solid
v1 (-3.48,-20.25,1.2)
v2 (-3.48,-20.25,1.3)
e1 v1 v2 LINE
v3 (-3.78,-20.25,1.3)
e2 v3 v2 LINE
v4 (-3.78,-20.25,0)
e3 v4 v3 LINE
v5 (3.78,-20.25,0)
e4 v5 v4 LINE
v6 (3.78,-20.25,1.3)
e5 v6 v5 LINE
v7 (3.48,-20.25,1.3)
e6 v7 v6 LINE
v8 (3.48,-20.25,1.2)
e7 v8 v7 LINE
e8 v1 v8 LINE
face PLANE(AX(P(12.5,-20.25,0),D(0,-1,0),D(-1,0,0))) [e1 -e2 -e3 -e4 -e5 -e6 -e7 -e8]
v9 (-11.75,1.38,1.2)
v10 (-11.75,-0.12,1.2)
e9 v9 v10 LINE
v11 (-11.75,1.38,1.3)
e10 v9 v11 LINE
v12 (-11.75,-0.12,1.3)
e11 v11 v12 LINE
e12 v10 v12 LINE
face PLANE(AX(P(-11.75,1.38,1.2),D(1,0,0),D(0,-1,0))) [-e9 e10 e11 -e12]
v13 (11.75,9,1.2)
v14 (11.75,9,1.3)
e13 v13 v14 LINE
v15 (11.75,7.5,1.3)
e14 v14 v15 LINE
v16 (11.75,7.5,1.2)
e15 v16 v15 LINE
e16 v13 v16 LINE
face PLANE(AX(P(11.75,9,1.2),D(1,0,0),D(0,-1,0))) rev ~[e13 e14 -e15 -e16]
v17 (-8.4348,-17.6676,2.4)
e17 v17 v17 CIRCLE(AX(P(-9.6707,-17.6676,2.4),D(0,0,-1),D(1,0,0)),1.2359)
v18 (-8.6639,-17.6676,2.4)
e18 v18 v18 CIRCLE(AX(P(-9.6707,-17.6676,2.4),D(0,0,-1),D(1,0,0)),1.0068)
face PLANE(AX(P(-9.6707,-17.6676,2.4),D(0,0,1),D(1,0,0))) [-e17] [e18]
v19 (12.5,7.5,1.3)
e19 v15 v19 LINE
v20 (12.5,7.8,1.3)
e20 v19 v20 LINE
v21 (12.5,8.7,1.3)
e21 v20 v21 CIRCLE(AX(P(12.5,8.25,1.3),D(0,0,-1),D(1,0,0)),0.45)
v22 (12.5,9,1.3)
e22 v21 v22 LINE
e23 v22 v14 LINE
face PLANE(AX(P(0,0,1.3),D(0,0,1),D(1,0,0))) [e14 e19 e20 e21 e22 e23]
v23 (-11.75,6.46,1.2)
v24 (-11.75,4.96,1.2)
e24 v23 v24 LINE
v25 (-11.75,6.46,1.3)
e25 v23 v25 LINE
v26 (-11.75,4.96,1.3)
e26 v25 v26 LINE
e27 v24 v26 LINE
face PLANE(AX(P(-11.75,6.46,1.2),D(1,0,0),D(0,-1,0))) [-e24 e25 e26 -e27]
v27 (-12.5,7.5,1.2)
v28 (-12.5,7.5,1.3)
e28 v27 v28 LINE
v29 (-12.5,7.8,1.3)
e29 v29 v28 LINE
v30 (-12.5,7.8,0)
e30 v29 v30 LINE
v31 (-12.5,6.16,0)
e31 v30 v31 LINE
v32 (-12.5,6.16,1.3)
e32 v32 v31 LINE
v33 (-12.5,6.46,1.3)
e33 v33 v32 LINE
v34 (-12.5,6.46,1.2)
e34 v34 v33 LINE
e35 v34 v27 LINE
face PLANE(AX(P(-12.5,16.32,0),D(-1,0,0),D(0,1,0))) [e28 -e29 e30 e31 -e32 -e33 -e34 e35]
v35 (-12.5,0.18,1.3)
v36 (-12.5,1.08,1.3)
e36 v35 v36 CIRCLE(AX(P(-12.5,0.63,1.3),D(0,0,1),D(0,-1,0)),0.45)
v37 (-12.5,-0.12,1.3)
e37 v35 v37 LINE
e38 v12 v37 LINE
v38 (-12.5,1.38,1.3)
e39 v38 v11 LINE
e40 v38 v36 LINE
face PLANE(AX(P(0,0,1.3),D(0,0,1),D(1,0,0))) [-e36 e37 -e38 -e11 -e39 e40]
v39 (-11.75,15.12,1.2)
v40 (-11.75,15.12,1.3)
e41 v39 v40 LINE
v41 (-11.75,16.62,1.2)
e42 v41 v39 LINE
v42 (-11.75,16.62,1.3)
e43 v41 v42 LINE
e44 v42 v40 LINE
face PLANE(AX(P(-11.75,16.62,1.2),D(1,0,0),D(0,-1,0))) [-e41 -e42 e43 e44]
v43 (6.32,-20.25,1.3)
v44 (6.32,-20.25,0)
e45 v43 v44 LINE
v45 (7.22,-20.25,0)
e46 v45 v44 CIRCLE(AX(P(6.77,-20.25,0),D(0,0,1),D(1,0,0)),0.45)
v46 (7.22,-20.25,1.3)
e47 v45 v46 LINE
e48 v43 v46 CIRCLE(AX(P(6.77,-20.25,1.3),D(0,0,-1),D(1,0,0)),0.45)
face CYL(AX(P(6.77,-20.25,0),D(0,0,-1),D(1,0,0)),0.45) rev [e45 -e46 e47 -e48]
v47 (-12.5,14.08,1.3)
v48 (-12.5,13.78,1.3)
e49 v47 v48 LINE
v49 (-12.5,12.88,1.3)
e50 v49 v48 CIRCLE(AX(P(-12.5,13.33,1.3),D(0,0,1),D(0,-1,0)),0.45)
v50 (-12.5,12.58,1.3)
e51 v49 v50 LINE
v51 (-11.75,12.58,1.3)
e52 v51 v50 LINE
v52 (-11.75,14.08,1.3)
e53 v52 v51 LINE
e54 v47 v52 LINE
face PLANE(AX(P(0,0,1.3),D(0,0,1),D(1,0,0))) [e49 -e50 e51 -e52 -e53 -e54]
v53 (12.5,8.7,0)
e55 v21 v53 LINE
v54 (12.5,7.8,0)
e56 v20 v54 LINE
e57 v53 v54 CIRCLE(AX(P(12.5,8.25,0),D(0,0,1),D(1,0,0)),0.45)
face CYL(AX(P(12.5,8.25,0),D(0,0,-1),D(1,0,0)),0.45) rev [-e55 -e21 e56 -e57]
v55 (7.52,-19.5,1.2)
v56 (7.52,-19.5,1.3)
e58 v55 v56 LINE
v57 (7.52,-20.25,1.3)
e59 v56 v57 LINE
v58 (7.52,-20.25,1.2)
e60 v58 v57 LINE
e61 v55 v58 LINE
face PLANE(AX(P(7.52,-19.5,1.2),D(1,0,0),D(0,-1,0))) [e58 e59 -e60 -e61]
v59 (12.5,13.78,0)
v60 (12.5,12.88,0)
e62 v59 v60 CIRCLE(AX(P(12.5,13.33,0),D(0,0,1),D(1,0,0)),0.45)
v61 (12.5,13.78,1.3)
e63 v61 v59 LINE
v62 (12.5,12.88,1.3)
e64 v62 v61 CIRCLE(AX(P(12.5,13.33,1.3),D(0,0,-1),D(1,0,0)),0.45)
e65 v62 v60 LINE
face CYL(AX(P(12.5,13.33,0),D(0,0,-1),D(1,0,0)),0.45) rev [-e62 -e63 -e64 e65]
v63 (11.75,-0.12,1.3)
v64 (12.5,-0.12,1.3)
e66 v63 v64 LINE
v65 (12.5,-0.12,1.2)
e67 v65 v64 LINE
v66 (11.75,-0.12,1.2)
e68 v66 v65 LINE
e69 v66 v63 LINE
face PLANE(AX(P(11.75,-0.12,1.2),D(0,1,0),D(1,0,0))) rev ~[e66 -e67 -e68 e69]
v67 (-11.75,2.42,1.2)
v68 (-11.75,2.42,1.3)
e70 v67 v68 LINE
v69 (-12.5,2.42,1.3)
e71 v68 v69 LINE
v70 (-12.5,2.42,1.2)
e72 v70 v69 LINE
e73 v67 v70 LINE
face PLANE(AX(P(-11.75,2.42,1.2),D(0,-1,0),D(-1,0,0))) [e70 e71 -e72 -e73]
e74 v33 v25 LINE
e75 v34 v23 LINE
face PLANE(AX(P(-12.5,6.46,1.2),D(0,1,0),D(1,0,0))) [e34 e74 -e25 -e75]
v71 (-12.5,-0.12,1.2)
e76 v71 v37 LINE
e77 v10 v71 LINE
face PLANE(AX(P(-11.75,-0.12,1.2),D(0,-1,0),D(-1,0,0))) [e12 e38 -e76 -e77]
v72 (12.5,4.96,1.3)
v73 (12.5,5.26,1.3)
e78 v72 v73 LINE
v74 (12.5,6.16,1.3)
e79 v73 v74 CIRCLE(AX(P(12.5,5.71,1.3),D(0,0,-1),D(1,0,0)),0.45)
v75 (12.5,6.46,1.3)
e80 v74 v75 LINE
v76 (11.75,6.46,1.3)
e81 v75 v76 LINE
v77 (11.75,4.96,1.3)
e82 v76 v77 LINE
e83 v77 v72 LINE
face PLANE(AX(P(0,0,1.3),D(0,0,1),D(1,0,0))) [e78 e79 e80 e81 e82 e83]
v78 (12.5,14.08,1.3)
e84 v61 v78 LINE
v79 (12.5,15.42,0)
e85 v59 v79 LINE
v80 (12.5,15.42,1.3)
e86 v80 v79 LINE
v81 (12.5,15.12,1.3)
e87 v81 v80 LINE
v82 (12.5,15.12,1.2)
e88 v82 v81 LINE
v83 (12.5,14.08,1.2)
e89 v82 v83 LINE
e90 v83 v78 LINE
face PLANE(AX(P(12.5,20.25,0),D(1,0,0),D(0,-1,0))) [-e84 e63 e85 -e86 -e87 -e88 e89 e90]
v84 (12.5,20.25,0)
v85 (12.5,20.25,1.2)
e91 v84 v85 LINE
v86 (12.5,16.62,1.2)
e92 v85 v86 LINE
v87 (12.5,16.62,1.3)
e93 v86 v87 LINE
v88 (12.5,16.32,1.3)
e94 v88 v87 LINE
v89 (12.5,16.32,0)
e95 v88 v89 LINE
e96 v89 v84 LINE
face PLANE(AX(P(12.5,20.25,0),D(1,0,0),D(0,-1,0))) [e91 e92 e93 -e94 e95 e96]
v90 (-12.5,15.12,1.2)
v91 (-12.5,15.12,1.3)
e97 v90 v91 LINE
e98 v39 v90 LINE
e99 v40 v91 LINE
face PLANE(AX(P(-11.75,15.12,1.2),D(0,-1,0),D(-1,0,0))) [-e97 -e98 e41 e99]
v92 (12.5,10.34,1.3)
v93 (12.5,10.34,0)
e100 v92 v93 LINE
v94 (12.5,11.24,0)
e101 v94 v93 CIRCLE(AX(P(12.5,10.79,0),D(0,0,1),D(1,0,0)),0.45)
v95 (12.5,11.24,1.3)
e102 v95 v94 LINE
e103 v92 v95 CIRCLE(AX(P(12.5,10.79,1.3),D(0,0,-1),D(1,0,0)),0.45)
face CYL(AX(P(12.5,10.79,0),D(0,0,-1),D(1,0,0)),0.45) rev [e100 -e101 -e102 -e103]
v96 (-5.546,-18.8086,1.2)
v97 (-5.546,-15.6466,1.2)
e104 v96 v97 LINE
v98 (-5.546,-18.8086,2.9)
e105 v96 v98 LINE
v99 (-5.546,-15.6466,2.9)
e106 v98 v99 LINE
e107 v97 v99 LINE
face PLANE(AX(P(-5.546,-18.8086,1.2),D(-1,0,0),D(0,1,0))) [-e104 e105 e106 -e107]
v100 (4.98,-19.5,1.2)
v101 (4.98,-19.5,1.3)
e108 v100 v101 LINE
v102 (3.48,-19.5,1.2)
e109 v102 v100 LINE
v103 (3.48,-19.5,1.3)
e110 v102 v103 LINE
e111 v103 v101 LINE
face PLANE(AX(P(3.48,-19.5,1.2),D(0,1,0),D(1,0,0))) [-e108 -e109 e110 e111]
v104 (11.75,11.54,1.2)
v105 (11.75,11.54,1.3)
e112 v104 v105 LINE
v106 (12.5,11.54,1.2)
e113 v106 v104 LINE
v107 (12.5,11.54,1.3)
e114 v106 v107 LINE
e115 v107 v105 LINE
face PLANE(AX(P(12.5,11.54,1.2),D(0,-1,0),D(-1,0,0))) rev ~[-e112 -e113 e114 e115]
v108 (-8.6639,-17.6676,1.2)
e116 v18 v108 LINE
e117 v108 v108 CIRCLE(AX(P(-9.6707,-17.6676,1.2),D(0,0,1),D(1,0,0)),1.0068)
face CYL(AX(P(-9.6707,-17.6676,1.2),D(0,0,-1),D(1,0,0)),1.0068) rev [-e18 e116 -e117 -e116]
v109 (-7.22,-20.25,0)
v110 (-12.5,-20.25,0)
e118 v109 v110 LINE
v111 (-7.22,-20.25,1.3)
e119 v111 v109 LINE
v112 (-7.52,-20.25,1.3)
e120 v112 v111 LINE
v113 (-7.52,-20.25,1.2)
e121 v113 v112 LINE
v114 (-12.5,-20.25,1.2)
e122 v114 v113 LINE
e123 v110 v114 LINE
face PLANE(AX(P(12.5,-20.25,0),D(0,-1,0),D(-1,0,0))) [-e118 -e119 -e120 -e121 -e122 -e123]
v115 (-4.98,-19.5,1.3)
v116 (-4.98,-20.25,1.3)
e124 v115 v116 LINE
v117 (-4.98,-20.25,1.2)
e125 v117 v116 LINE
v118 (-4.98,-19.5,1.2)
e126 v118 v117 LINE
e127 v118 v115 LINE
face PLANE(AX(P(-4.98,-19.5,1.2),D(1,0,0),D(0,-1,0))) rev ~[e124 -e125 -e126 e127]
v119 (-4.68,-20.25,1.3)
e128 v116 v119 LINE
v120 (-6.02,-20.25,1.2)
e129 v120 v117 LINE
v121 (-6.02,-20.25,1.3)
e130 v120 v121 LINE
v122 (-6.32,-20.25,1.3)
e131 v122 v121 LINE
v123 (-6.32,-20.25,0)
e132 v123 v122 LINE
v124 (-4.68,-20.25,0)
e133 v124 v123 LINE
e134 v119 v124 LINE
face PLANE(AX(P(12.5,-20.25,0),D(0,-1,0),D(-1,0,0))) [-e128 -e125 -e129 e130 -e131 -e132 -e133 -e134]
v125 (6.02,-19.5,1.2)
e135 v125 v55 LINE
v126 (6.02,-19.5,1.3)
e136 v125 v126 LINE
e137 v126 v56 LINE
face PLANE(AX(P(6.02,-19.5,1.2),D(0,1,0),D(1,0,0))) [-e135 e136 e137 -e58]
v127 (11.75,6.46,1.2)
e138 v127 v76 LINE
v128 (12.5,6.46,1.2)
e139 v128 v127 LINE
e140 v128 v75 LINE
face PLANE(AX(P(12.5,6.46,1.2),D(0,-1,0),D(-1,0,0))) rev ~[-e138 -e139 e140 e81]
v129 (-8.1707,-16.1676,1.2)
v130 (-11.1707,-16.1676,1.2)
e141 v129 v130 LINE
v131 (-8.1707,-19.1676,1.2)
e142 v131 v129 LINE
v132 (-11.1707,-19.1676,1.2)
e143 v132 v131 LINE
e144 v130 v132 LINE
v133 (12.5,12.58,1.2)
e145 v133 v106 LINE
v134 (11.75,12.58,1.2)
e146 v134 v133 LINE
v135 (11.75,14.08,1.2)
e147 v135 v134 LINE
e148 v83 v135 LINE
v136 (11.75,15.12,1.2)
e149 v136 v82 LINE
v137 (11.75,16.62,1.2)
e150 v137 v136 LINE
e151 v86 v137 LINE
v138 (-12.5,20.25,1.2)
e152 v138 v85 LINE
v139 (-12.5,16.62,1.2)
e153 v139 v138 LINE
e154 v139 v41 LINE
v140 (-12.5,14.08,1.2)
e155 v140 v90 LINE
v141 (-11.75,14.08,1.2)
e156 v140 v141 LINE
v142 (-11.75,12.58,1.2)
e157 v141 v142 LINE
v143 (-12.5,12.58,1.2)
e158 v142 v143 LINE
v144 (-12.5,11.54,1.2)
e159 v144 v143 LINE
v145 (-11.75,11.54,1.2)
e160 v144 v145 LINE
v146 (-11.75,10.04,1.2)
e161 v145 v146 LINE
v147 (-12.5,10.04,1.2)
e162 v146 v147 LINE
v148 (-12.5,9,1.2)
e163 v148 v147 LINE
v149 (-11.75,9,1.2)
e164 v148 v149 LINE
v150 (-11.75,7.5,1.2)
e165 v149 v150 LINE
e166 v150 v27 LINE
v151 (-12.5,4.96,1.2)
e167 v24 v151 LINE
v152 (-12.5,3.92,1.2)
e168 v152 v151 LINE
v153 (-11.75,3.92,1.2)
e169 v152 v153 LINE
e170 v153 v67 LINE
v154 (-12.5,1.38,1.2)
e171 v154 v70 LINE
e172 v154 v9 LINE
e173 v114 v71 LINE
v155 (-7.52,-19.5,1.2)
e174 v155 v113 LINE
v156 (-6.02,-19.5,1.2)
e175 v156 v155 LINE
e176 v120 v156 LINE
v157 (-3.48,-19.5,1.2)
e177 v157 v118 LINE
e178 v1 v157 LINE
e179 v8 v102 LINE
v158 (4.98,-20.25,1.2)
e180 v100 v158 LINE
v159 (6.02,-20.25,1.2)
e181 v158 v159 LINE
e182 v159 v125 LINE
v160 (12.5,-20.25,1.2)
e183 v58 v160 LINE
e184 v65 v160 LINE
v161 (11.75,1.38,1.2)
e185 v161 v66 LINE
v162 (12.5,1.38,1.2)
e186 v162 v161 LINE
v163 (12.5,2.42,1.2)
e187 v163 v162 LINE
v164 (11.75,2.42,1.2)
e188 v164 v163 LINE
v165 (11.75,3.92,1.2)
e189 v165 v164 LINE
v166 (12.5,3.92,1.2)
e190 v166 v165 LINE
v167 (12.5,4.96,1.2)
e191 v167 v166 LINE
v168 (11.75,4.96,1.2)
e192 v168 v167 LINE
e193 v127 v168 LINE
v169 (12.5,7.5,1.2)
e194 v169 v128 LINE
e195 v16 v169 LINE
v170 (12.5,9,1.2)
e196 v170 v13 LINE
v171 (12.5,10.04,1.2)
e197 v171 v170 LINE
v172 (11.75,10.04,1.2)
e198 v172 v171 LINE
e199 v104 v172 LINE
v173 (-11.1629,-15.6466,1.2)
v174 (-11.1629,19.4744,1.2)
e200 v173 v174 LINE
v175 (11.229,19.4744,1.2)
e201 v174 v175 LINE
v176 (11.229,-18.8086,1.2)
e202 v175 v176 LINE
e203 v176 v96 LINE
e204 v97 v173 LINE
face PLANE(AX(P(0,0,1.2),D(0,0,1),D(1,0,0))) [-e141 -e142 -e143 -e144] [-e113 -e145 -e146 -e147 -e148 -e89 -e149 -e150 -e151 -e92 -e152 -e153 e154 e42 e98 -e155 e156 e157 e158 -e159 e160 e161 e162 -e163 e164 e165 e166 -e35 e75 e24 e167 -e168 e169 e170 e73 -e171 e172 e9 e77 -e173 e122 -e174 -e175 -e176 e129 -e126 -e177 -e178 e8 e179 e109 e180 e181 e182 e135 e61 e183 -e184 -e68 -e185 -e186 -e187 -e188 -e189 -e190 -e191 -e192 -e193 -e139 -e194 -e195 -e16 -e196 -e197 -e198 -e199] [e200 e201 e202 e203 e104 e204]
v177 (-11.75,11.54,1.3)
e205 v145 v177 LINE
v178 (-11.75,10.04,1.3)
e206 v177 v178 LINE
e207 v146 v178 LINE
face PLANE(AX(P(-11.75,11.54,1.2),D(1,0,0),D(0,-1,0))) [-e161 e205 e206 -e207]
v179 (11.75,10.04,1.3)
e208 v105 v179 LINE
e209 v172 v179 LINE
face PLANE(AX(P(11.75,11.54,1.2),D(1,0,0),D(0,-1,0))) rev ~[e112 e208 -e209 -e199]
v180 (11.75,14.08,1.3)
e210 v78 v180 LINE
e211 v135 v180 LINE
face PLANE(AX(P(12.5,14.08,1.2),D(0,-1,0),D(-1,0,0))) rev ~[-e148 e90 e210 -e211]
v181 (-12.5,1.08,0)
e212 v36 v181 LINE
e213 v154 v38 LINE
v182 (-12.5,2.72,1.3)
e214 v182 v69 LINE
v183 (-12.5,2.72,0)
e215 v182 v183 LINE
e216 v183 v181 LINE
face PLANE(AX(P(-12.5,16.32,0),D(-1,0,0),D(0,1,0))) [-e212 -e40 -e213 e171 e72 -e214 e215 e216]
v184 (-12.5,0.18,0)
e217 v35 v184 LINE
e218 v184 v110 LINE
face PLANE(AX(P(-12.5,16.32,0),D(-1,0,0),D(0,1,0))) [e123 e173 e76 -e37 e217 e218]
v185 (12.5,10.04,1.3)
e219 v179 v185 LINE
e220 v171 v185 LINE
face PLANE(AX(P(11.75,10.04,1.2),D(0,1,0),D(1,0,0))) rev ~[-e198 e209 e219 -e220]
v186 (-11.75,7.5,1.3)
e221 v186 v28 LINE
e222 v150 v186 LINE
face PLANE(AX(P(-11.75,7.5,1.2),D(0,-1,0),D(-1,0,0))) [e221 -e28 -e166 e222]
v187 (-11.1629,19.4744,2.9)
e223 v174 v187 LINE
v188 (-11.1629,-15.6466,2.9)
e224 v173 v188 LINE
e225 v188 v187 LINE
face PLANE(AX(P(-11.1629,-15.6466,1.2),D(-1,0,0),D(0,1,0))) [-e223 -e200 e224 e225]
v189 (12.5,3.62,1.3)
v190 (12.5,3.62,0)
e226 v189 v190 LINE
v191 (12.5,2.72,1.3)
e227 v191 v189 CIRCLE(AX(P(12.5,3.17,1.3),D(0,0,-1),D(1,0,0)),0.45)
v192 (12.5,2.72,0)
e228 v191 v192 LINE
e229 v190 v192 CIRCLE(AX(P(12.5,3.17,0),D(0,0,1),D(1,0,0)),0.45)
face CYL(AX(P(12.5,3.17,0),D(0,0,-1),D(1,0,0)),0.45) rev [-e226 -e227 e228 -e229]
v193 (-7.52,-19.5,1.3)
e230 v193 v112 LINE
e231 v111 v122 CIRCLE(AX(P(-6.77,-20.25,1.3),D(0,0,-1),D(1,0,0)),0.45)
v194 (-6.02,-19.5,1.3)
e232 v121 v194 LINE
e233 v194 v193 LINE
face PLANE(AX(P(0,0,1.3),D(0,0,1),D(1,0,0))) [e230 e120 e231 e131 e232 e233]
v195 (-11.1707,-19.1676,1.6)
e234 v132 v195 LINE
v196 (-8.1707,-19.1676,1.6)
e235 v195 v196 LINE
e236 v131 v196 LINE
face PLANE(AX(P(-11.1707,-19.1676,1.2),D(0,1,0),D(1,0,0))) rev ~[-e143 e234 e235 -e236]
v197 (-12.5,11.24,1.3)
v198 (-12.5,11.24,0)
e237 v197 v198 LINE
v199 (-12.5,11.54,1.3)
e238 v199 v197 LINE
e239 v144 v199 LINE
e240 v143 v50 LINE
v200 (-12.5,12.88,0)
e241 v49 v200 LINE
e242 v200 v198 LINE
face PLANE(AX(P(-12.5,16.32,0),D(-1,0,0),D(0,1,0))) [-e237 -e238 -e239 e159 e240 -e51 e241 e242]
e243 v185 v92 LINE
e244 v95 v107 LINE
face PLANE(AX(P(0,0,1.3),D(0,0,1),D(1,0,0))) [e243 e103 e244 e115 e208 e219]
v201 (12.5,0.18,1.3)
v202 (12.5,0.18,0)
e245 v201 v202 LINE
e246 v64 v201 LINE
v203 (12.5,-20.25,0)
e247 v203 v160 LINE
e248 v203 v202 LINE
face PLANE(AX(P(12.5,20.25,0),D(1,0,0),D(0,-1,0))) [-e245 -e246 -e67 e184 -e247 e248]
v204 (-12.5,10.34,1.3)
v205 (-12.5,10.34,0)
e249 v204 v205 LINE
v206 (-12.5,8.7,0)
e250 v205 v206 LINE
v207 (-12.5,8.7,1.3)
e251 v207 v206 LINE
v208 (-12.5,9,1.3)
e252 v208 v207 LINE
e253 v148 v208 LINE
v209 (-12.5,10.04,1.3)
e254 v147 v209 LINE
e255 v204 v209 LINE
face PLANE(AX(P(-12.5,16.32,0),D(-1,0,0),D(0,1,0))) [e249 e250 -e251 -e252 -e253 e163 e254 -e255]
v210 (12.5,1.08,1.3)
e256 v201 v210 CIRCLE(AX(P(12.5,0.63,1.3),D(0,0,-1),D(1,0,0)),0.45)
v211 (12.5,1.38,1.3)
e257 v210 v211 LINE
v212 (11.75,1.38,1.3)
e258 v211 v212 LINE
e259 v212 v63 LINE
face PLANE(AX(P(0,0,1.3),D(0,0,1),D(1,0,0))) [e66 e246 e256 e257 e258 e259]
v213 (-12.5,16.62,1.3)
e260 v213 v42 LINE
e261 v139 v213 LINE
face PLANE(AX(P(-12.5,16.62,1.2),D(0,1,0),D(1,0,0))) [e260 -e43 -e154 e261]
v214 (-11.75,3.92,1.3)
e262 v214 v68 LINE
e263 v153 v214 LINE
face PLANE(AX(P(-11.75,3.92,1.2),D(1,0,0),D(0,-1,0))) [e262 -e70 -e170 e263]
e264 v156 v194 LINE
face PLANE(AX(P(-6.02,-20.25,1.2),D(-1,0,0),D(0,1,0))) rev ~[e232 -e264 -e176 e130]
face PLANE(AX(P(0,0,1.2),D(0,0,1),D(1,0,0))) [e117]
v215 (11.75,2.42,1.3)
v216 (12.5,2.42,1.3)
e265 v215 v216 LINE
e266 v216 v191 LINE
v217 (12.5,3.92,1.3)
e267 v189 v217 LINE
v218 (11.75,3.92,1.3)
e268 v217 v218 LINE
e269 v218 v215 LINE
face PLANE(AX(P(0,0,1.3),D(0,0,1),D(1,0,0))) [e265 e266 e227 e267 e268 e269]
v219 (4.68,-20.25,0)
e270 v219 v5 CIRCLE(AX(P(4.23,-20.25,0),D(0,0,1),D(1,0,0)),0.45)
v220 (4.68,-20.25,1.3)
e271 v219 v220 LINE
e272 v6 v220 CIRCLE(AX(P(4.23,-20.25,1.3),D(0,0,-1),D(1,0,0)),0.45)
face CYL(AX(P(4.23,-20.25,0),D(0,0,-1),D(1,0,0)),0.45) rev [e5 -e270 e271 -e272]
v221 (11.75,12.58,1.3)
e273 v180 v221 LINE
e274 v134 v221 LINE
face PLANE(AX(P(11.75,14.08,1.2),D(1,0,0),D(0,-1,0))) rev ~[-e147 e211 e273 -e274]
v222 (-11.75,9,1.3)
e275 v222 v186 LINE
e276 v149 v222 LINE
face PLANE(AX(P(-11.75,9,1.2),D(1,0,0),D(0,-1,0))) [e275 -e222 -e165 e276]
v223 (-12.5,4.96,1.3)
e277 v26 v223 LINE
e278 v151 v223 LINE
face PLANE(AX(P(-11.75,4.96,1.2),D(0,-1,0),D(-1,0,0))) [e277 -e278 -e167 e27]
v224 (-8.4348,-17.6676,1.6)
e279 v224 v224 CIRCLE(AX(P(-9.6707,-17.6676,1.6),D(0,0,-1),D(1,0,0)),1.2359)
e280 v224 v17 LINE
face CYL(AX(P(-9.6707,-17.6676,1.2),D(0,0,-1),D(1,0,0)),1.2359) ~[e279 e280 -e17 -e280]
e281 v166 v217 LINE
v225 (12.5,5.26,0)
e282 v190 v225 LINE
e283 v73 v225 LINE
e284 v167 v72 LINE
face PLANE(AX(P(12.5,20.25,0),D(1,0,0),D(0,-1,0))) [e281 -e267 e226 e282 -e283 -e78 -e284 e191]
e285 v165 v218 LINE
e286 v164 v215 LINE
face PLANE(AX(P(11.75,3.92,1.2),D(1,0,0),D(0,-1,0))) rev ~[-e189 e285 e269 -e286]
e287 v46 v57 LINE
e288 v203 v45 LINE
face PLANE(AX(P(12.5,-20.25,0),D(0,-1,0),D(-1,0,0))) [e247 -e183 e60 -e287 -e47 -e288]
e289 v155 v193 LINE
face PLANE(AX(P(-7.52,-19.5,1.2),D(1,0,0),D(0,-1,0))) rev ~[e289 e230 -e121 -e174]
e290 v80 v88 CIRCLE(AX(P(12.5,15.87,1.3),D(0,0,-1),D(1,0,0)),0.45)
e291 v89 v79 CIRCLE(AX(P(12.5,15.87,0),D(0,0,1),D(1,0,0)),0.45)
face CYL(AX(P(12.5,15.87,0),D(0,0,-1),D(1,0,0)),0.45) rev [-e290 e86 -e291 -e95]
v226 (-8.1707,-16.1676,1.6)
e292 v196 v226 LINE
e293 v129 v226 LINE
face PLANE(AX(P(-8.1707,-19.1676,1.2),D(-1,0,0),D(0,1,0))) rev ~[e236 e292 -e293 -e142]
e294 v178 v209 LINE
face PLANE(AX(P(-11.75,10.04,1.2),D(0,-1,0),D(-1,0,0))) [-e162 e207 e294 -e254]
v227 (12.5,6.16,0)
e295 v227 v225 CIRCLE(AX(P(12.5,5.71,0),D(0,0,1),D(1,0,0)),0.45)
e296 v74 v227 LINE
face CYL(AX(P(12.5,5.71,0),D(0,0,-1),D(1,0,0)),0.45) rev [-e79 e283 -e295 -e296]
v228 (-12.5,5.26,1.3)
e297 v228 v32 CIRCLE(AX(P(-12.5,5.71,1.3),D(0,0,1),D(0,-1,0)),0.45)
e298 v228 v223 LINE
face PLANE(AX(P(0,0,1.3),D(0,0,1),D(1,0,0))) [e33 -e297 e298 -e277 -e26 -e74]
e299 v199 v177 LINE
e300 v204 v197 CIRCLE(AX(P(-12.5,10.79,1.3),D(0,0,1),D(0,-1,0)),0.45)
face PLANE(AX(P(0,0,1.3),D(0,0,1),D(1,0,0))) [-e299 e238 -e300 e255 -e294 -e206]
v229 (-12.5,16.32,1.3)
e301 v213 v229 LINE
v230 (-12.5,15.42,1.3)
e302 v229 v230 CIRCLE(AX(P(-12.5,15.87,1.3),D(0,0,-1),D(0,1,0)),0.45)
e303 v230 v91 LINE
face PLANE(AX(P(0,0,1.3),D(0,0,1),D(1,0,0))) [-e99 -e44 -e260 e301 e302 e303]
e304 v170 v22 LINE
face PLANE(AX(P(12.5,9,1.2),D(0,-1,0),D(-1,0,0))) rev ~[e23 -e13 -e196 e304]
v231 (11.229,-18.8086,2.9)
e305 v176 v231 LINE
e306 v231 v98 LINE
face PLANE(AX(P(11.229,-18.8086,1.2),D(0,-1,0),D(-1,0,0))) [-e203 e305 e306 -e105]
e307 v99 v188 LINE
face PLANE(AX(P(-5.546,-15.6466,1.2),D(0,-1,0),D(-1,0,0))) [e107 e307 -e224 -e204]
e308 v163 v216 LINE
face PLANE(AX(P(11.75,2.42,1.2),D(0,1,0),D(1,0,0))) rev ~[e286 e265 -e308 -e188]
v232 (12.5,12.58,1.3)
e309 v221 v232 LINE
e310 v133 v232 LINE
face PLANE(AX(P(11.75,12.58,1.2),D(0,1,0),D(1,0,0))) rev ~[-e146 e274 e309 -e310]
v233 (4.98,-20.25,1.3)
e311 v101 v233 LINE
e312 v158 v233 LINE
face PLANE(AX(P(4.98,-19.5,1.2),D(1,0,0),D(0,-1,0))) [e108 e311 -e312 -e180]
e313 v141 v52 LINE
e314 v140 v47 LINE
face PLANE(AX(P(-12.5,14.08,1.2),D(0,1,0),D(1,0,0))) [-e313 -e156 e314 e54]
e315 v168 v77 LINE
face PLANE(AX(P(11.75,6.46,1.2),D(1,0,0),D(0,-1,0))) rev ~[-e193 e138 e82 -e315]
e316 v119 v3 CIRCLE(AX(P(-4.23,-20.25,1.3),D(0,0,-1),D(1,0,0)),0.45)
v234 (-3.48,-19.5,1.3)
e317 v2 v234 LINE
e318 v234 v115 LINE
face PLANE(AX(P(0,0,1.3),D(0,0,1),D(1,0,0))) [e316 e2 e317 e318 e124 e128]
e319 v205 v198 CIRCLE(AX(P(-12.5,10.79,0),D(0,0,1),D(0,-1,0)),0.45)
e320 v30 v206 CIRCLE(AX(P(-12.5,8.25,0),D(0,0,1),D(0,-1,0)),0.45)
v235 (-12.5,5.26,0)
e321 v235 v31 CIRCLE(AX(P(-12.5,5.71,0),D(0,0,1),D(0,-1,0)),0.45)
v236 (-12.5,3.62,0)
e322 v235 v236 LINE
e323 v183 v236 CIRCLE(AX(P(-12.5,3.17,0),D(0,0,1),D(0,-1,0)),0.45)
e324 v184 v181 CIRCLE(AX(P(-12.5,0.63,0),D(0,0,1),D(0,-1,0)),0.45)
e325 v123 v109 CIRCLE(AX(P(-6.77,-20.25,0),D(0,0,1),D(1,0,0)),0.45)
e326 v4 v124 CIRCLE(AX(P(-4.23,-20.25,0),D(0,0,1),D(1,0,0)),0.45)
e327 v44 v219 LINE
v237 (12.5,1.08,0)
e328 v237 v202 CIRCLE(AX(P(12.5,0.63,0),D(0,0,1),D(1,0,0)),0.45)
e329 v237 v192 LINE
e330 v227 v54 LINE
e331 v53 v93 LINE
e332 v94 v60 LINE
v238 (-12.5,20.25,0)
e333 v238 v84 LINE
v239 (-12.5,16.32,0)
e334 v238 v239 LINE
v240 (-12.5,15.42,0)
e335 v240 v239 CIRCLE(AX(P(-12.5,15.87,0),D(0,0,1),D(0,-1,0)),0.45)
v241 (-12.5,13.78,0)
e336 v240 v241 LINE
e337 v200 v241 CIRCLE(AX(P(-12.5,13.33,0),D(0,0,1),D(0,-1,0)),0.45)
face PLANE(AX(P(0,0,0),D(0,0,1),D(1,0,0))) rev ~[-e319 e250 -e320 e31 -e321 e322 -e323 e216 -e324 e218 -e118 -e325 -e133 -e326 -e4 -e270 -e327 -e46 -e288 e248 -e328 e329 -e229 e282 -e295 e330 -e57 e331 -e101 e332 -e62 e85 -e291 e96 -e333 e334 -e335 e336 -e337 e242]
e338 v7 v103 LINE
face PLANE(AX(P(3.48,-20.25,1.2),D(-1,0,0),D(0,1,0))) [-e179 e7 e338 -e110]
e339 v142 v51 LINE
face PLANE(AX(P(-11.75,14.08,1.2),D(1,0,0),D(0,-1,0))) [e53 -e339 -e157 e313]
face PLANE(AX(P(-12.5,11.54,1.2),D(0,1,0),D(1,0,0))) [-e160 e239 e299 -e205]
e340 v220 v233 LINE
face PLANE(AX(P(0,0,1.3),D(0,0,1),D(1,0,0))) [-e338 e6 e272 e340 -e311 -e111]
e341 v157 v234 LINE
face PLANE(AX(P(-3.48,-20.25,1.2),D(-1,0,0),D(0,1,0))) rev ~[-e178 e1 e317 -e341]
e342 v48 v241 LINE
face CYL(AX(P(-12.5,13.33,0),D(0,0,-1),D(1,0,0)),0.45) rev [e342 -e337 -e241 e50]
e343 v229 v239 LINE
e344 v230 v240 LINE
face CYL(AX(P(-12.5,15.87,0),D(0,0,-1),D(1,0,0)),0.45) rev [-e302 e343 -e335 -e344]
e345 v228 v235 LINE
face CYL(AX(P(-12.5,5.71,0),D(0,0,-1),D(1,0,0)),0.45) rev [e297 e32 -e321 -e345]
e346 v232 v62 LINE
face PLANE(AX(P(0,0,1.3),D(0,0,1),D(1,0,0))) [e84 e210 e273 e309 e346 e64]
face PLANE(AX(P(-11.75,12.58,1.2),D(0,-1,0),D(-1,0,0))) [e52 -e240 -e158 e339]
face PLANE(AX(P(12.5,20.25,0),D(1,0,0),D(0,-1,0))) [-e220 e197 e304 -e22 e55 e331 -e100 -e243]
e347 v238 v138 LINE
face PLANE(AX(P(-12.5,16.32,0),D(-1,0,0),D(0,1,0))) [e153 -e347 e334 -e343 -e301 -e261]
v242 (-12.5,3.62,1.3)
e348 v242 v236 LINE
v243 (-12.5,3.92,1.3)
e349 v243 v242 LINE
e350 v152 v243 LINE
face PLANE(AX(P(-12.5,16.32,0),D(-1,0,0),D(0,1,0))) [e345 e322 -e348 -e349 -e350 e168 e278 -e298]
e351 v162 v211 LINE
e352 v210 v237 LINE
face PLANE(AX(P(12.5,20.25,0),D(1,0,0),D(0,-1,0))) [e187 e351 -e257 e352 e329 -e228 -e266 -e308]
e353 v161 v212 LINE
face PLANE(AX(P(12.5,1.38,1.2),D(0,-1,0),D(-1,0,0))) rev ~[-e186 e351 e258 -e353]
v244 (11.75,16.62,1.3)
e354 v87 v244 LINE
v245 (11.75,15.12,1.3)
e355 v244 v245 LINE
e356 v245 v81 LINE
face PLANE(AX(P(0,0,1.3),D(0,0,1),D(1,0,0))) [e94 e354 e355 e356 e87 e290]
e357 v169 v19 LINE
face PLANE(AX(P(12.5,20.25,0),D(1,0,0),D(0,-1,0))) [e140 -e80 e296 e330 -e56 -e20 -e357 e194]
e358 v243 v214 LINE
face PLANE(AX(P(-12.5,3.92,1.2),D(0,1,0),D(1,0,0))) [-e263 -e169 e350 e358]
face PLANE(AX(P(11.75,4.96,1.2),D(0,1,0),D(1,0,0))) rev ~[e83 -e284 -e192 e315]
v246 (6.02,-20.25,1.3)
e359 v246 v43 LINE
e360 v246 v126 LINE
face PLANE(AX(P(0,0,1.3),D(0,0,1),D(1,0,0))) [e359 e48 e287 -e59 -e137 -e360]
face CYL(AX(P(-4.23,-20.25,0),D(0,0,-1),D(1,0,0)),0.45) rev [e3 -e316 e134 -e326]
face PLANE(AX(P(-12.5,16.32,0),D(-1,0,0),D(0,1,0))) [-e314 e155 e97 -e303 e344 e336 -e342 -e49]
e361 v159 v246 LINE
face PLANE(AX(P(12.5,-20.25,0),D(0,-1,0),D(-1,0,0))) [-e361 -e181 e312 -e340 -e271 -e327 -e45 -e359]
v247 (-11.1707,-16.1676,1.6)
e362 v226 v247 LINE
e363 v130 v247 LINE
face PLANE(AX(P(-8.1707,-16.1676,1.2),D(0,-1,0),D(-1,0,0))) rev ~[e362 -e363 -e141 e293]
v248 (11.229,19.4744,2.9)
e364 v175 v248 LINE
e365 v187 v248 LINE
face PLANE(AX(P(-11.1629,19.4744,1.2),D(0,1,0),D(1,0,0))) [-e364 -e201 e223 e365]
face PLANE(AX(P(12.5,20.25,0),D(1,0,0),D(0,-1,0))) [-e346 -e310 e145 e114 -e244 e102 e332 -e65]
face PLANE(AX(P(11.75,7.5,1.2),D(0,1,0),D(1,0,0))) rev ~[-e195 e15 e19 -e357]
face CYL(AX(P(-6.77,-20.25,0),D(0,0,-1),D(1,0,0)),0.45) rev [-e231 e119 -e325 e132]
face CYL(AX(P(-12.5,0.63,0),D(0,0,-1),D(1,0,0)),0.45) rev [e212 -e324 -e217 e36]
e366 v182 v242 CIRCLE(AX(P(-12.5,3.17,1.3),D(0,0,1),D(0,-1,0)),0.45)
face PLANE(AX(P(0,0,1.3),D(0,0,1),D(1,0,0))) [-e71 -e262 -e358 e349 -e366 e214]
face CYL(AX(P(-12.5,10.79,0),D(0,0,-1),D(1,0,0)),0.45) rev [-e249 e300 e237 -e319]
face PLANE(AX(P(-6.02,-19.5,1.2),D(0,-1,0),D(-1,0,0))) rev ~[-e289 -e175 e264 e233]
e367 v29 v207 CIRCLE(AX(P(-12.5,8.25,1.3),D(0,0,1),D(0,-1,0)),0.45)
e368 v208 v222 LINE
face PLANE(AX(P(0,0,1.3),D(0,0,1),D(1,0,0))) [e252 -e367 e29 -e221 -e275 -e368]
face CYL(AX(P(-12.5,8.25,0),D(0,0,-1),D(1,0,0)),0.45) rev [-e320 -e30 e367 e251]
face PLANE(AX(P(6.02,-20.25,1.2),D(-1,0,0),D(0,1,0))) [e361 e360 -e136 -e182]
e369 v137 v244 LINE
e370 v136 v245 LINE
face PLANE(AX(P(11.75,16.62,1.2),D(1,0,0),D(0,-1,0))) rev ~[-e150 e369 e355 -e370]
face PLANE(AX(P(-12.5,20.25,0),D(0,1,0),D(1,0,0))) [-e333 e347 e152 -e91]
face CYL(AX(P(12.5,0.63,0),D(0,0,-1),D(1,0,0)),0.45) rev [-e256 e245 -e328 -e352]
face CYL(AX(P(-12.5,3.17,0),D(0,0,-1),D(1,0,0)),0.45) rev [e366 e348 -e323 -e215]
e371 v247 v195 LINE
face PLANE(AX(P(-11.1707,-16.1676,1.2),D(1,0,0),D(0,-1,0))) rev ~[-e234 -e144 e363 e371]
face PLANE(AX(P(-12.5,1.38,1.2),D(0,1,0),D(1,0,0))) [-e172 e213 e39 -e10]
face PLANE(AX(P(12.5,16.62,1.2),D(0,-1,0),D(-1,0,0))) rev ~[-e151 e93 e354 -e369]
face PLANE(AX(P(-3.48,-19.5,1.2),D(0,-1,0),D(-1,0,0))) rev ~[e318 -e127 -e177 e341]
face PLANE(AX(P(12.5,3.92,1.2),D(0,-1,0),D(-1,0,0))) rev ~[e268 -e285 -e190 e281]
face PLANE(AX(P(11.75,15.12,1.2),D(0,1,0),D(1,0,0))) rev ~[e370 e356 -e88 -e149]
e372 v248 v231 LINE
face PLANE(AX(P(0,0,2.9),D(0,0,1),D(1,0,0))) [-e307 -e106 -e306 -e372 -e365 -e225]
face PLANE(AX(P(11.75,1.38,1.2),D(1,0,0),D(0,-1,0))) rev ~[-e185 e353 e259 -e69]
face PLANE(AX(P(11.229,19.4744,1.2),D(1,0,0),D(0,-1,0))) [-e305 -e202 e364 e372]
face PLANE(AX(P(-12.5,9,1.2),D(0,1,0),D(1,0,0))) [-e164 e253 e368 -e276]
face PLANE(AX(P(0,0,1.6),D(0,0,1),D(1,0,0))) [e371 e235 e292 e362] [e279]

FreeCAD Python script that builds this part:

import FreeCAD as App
import Part
import Sketcher
Q = App.Units.Quantity


def add_polygon(sketch, points):
    """Adds a closed chain of lines whose ends are joined by coincident constraints."""
    first, n = sketch.GeometryCount, len(points)
    for a, b in zip(points, points[1:] + points[:1]):
        sketch.addGeometry(Part.LineSegment(App.Vector(*a, 0), App.Vector(*b, 0)), False)
    for i in range(n):
        sketch.addConstraint(Sketcher.Constraint("Coincident", first + i, 2, first + (i + 1) % n, 1))

doc = App.newDocument("Part")
body = doc.addObject("PartDesign::Body", "Body")

# Sketch on XY plane
sketch1 = doc.addObject("Sketcher::SketchObject", "Sketch")
body.addObject(sketch1)
sketch1.AttachmentSupport = (doc.XY_Plane, [""])
sketch1.MapMode = "FlatFace"
add_polygon(sketch1, [(12, 20), (-12, 20), (-12, -20), (12, -20)])  # lines 0-3
sketch1.addConstraint([
    Sketcher.Constraint("Horizontal", 0),
    Sketcher.Constraint("Vertical", 1),
    Sketcher.Constraint("Horizontal", 2),
    Sketcher.Constraint("Vertical", 3),
    Sketcher.Constraint("Symmetric", 0, 2, 2, 2, -1, 1),
    Sketcher.Constraint("DistanceX", 0, 2, 0, 1, Q("25 mm")),
    Sketcher.Constraint("DistanceY", 1, 2, 1, 1, Q("40.5 mm")),
])
pad1 = doc.addObject("PartDesign::Pad", "Pad")
body.addObject(pad1)
pad1.Profile = sketch1
pad1.Length = 1.2

# Sketch on XY plane
sketch2 = doc.addObject("Sketcher::SketchObject", "Sketch001")
body.addObject(sketch2)
sketch2.AttachmentSupport = (doc.XY_Plane, [""])
sketch2.MapMode = "FlatFace"
sketch2.AttachmentOffset = App.Placement(App.Vector(0, 0, 1.2), App.Rotation())
add_polygon(sketch2, [(-11.8, 16.6), (-12.5, 16.6), (-12.5, 15.1), (-11.8, 15.1)])  # lines 0-3
add_polygon(sketch2, [(6, -19.5), (6, -20.2), (7.5, -20.2), (7.5, -19.5)])  # lines 4-7
add_polygon(sketch2, [(3.5, -19.5), (3.5, -20.2), (5, -20.2), (5, -19.5)])  # lines 8-11
add_polygon(sketch2, [(-5, -19.5), (-5, -20.2), (-3.5, -20.2), (-3.5, -19.5)])  # lines 12-15
add_polygon(sketch2, [(-7.5, -19.5), (-7.5, -20.2), (-6, -20.2), (-6, -19.5)])  # lines 16-19
add_polygon(sketch2, [(-11.8, 1.4), (-12.5, 1.4), (-12.5, -0.1), (-11.8, -0.1)])  # lines 20-23
add_polygon(sketch2, [(-11.8, 3.9), (-12.5, 3.9), (-12.5, 2.4), (-11.8, 2.4)])  # lines 24-27
add_polygon(sketch2, [(-11.8, 6.5), (-12.5, 6.5), (-12.5, 5), (-11.8, 5)])  # lines 28-31
add_polygon(sketch2, [(-11.8, 9), (-12.5, 9), (-12.5, 7.5), (-11.8, 7.5)])  # lines 32-35
add_polygon(sketch2, [(-11.8, 11.5), (-12.5, 11.5), (-12.5, 10), (-11.8, 10)])  # lines 36-39
add_polygon(sketch2, [(-11.8, 14.1), (-12.5, 14.1), (-12.5, 12.6), (-11.8, 12.6)])  # lines 40-43
add_polygon(sketch2, [(12.5, 15.1), (12.5, 16.6), (11.8, 16.6), (11.8, 15.1)])  # lines 44-47
add_polygon(sketch2, [(12.5, 12.6), (12.5, 14.1), (11.8, 14.1), (11.8, 12.6)])  # lines 48-51
add_polygon(sketch2, [(12.5, 10), (12.5, 11.5), (11.8, 11.5), (11.8, 10)])  # lines 52-55
add_polygon(sketch2, [(12.5, 7.5), (12.5, 9), (11.8, 9), (11.8, 7.5)])  # lines 56-59
add_polygon(sketch2, [(12.5, 5), (12.5, 6.5), (11.8, 6.5), (11.8, 5)])  # lines 60-63
add_polygon(sketch2, [(12.5, 2.4), (12.5, 3.9), (11.8, 3.9), (11.8, 2.4)])  # lines 64-67
add_polygon(sketch2, [(12.5, -0.1), (12.5, 1.4), (11.8, 1.4), (11.8, -0.1)])  # lines 68-71
sketch2.addConstraint([
    Sketcher.Constraint("Horizontal", 0),
    Sketcher.Constraint("Vertical", 1),
    Sketcher.Constraint("Horizontal", 2),
    Sketcher.Constraint("Vertical", 3),
    Sketcher.Constraint("Vertical", 4),
    Sketcher.Constraint("Horizontal", 5),
    Sketcher.Constraint("Vertical", 6),
    Sketcher.Constraint("Horizontal", 7),
    Sketcher.Constraint("Vertical", 8),
    Sketcher.Constraint("Horizontal", 9),
    Sketcher.Constraint("Vertical", 10),
    Sketcher.Constraint("Horizontal", 11),
    Sketcher.Constraint("Vertical", 12),
    Sketcher.Constraint("Horizontal", 13),
    Sketcher.Constraint("Vertical", 14),
    Sketcher.Constraint("Horizontal", 15),
    Sketcher.Constraint("Vertical", 16),
    Sketcher.Constraint("Horizontal", 17),
    Sketcher.Constraint("Vertical", 18),
    Sketcher.Constraint("Horizontal", 19),
    Sketcher.Constraint("Horizontal", 20),
    Sketcher.Constraint("Vertical", 21),
    Sketcher.Constraint("Horizontal", 22),
    Sketcher.Constraint("Vertical", 23),
    Sketcher.Constraint("Horizontal", 24),
    Sketcher.Constraint("Vertical", 25),
    Sketcher.Constraint("Horizontal", 26),
    Sketcher.Constraint("Vertical", 27),
    Sketcher.Constraint("Horizontal", 28),
    Sketcher.Constraint("Vertical", 29),
    Sketcher.Constraint("Horizontal", 30),
    Sketcher.Constraint("Vertical", 31),
    Sketcher.Constraint("Horizontal", 32),
    Sketcher.Constraint("Vertical", 33),
    Sketcher.Constraint("Horizontal", 34),
    Sketcher.Constraint("Vertical", 35),
    Sketcher.Constraint("Horizontal", 36),
    Sketcher.Constraint("Vertical", 37),
    Sketcher.Constraint("Horizontal", 38),
    Sketcher.Constraint("Vertical", 39),
    Sketcher.Constraint("Horizontal", 40),
    Sketcher.Constraint("Vertical", 41),
    Sketcher.Constraint("Horizontal", 42),
    Sketcher.Constraint("Vertical", 43),
    Sketcher.Constraint("Vertical", 44),
    Sketcher.Constraint("Horizontal", 45),
    Sketcher.Constraint("Vertical", 46),
    Sketcher.Constraint("Horizontal", 47),
    Sketcher.Constraint("Vertical", 48),
    Sketcher.Constraint("Horizontal", 49),
    Sketcher.Constraint("Vertical", 50),
    Sketcher.Constraint("Horizontal", 51),
    Sketcher.Constraint("Vertical", 52),
    Sketcher.Constraint("Horizontal", 53),
    Sketcher.Constraint("Vertical", 54),
    Sketcher.Constraint("Horizontal", 55),
    Sketcher.Constraint("Vertical", 56),
    Sketcher.Constraint("Horizontal", 57),
    Sketcher.Constraint("Vertical", 58),
    Sketcher.Constraint("Horizontal", 59),
    Sketcher.Constraint("Vertical", 60),
    Sketcher.Constraint("Horizontal", 61),
    Sketcher.Constraint("Vertical", 62),
    Sketcher.Constraint("Horizontal", 63),
    Sketcher.Constraint("Vertical", 64),
    Sketcher.Constraint("Horizontal", 65),
    Sketcher.Constraint("Vertical", 66),
    Sketcher.Constraint("Horizontal", 67),
    Sketcher.Constraint("Vertical", 68),
    Sketcher.Constraint("Horizontal", 69),
    Sketcher.Constraint("Vertical", 70),
    Sketcher.Constraint("Horizontal", 71),
    Sketcher.Constraint("Symmetric", 9, 2, 12, 2, -2),
    Sketcher.Constraint("Symmetric", 11, 2, 14, 2, -2),
    Sketcher.Constraint("Symmetric", 5, 2, 16, 2, -2),
    Sketcher.Constraint("Symmetric", 7, 2, 18, 2, -2),
    Sketcher.Constraint("Symmetric", 0, 2, 44, 2, -2),
    Sketcher.Constraint("Symmetric", 2, 2, 46, 2, -2),
    Sketcher.Constraint("Symmetric", 40, 2, 48, 2, -2),
    Sketcher.Constraint("Symmetric", 42, 2, 50, 2, -2),
    Sketcher.Constraint("Symmetric", 36, 2, 52, 2, -2),
    Sketcher.Constraint("Symmetric", 38, 2, 54, 2, -2),
    Sketcher.Constraint("Symmetric", 32, 2, 56, 2, -2),
    Sketcher.Constraint("Symmetric", 34, 2, 58, 2, -2),
    Sketcher.Constraint("Symmetric", 28, 2, 60, 2, -2),
    Sketcher.Constraint("Symmetric", 30, 2, 62, 2, -2),
    Sketcher.Constraint("Symmetric", 24, 2, 64, 2, -2),
    Sketcher.Constraint("Symmetric", 26, 2, 66, 2, -2),
    Sketcher.Constraint("Symmetric", 20, 2, 68, 2, -2),
    Sketcher.Constraint("Symmetric", 22, 2, 70, 2, -2),
    Sketcher.Constraint("Horizontal", 5, 2, 8, 2),
    Sketcher.Constraint("Horizontal", 7, 2, 10, 2),
    Sketcher.Constraint("Vertical", 1, 2, 20, 2),
    Sketcher.Constraint("Vertical", 3, 2, 22, 2),
    Sketcher.Constraint("Vertical", 21, 2, 24, 2),
    Sketcher.Constraint("Vertical", 23, 2, 26, 2),
    Sketcher.Constraint("Vertical", 25, 2, 28, 2),
    Sketcher.Constraint("Vertical", 27, 2, 30, 2),
    Sketcher.Constraint("Vertical", 29, 2, 32, 2),
    Sketcher.Constraint("Vertical", 31, 2, 34, 2),
    Sketcher.Constraint("Vertical", 33, 2, 36, 2),
    Sketcher.Constraint("Vertical", 35, 2, 38, 2),
    Sketcher.Constraint("Vertical", 37, 2, 40, 2),
    Sketcher.Constraint("Vertical", 39, 2, 42, 2),
    Sketcher.Constraint("Equal", 7, 9),
    Sketcher.Constraint("Equal", 19, 1),
    Sketcher.Constraint("Equal", 71, 4),
    Sketcher.Constraint("Equal", 3, 21),
    Sketcher.Constraint("Equal", 23, 25),
    Sketcher.Constraint("Equal", 27, 29),
    Sketcher.Constraint("Equal", 31, 33),
    Sketcher.Constraint("Equal", 35, 37),
    Sketcher.Constraint("Equal", 39, 41),
    Sketcher.Constraint("DistanceX", 5, 1, 5, 2, Q("1.5 mm")),
    Sketcher.Constraint("DistanceX", 0, 2, 0, 1, Q("0.75 mm")),
    Sketcher.Constraint("DistanceY", -1, 1, 32, 2, Q("9 mm")),
    Sketcher.Constraint("DistanceX", 0, 2, -1, 1, Q("12.5 mm")),
    Sketcher.Constraint("DistanceY", 6, 2, -1, 1, Q("19.5 mm")),
    Sketcher.Constraint("DistanceY", -1, 1, 0, 2, Q("16.62 mm")),
    Sketcher.Constraint("DistanceX", -1, 1, 4, 2, Q("6.02 mm")),
    Sketcher.Constraint("DistanceX", -1, 1, 8, 2, Q("3.48 mm")),
    Sketcher.Constraint("DistanceY", -1, 1, 20, 2, Q("1.38 mm")),
    Sketcher.Constraint("DistanceY", -1, 1, 24, 2, Q("3.92 mm")),
    Sketcher.Constraint("DistanceY", -1, 1, 28, 2, Q("6.46 mm")),
    Sketcher.Constraint("DistanceY", -1, 1, 36, 2, Q("11.54 mm")),
    Sketcher.Constraint("DistanceY", -1, 1, 40, 2, Q("14.08 mm")),
])
pad2 = doc.addObject("PartDesign::Pad", "Pad001")
body.addObject(pad2)
pad2.Profile = sketch2
pad2.Length = 0.1

# Sketch on XY plane
sketch3 = doc.addObject("Sketcher::SketchObject", "Sketch002")
body.addObject(sketch3)
sketch3.AttachmentSupport = (doc.XY_Plane, [""])
sketch3.MapMode = "FlatFace"
sketch3.addGeometry([
    Part.Circle(App.Vector(-12.5, 15.87, 0), App.Vector(0, 0, 1), 0.45),  # 0
    Part.Circle(App.Vector(12.5, 15.87, 0), App.Vector(0, 0, 1), 0.45),  # 1
    Part.Circle(App.Vector(-12.5, 13.33, 0), App.Vector(0, 0, 1), 0.45),  # 2
    Part.Circle(App.Vector(12.5, 13.33, 0), App.Vector(0, 0, 1), 0.45),  # 3
    Part.Circle(App.Vector(-12.5, 10.79, 0), App.Vector(0, 0, 1), 0.45),  # 4
    Part.Circle(App.Vector(12.5, 10.79, 0), App.Vector(0, 0, 1), 0.45),  # 5
    Part.Circle(App.Vector(-12.5, 8.25, 0), App.Vector(0, 0, 1), 0.45),  # 6
    Part.Circle(App.Vector(12.5, 8.25, 0), App.Vector(0, 0, 1), 0.45),  # 7
    Part.Circle(App.Vector(-12.5, 5.71, 0), App.Vector(0, 0, 1), 0.45),  # 8
    Part.Circle(App.Vector(12.5, 5.71, 0), App.Vector(0, 0, 1), 0.45),  # 9
    Part.Circle(App.Vector(-12.5, 3.17, 0), App.Vector(0, 0, 1), 0.45),  # 10
    Part.Circle(App.Vector(12.5, 3.17, 0), App.Vector(0, 0, 1), 0.45),  # 11
    Part.Circle(App.Vector(-12.5, 0.63, 0), App.Vector(0, 0, 1), 0.45),  # 12
    Part.Circle(App.Vector(12.5, 0.63, 0), App.Vector(0, 0, 1), 0.45),  # 13
    Part.Circle(App.Vector(-6.77, -20.25, 0), App.Vector(0, 0, 1), 0.45),  # 14
    Part.Circle(App.Vector(6.77, -20.25, 0), App.Vector(0, 0, 1), 0.45),  # 15
    Part.Circle(App.Vector(-4.23, -20.25, 0), App.Vector(0, 0, 1), 0.45),  # 16
    Part.Circle(App.Vector(4.23, -20.25, 0), App.Vector(0, 0, 1), 0.45),  # 17
], False)
sketch3.addConstraint([
    Sketcher.Constraint("Equal", 0, 1),
    Sketcher.Constraint("Equal", 1, 2),
    Sketcher.Constraint("Equal", 2, 3),
    Sketcher.Constraint("Equal", 3, 4),
    Sketcher.Constraint("Equal", 4, 5),
    Sketcher.Constraint("Equal", 5, 6),
    Sketcher.Constraint("Equal", 6, 7),
    Sketcher.Constraint("Equal", 7, 8),
    Sketcher.Constraint("Equal", 8, 9),
    Sketcher.Constraint("Equal", 9, 10),
    Sketcher.Constraint("Equal", 10, 11),
    Sketcher.Constraint("Equal", 11, 12),
    Sketcher.Constraint("Equal", 12, 13),
    Sketcher.Constraint("Equal", 13, 14),
    Sketcher.Constraint("Equal", 14, 15),
    Sketcher.Constraint("Equal", 15, 16),
    Sketcher.Constraint("Equal", 16, 17),
    Sketcher.Constraint("Symmetric", 0, 3, 1, 3, -2),
    Sketcher.Constraint("Symmetric", 2, 3, 3, 3, -2),
    Sketcher.Constraint("Symmetric", 4, 3, 5, 3, -2),
    Sketcher.Constraint("Symmetric", 6, 3, 7, 3, -2),
    Sketcher.Constraint("Symmetric", 8, 3, 9, 3, -2),
    Sketcher.Constraint("Symmetric", 10, 3, 11, 3, -2),
    Sketcher.Constraint("Symmetric", 12, 3, 13, 3, -2),
    Sketcher.Constraint("Symmetric", 14, 3, 15, 3, -2),
    Sketcher.Constraint("Symmetric", 16, 3, 17, 3, -2),
    Sketcher.Constraint("Horizontal", 15, 3, 16, 3),
    Sketcher.Constraint("Vertical", 0, 3, 2, 3),
    Sketcher.Constraint("Vertical", 2, 3, 4, 3),
    Sketcher.Constraint("Vertical", 4, 3, 6, 3),
    Sketcher.Constraint("Vertical", 6, 3, 8, 3),
    Sketcher.Constraint("Vertical", 8, 3, 10, 3),
    Sketcher.Constraint("Vertical", 10, 3, 12, 3),
    Sketcher.Constraint("Diameter", 0, Q("0.9 mm")),
    Sketcher.Constraint("DistanceX", 0, 3, 1, 3, Q("25 mm")),
    Sketcher.Constraint("DistanceY", 2, 3, 0, 3, Q("2.54 mm")),
    Sketcher.Constraint("DistanceY", 4, 3, 2, 3, Q("2.54 mm")),
    Sketcher.Constraint("DistanceY", 6, 3, 4, 3, Q("2.54 mm")),
    Sketcher.Constraint("DistanceY", 8, 3, 6, 3, Q("2.54 mm")),
    Sketcher.Constraint("DistanceY", 10, 3, 8, 3, Q("2.54 mm")),
    Sketcher.Constraint("DistanceY", 12, 3, 10, 3, Q("2.54 mm")),
    Sketcher.Constraint("DistanceX", 12, 3, 14, 3, Q("5.73 mm")),
    Sketcher.Constraint("DistanceX", 14, 3, 16, 3, Q("2.54 mm")),
    Sketcher.Constraint("DistanceY", 14, 3, 6, 3, Q("28.5 mm")),
    Sketcher.Constraint("DistanceY", -1, 1, 0, 3, Q("15.87 mm")),
])
pocket1 = doc.addObject("PartDesign::Pocket", "Pocket")
body.addObject(pocket1)
pocket1.Profile = sketch3
pocket1.Length = 2
pocket1.Reversed = True

# Sketch on XY plane
sketch4 = doc.addObject("Sketcher::SketchObject", "Sketch003")
body.addObject(sketch4)
sketch4.AttachmentSupport = (doc.XY_Plane, [""])
sketch4.MapMode = "FlatFace"
sketch4.AttachmentOffset = App.Placement(App.Vector(0, 0, 1.2), App.Rotation())
add_polygon(sketch4, [(11.2, 19.5), (-11.2, 19.5), (-11.2, -15.6), (-5.5, -15.6), (-5.5, -18.8), (11.2, -18.8)])  # lines 0-5
sketch4.addGeometry(Part.Circle(App.Vector(-9.7, -17.7, 0), App.Vector(0, 0, 1), 1.2), False)  # 6
sketch4.addGeometry(Part.Circle(App.Vector(-9.7, -17.7, 0), App.Vector(0, 0, 1), 1), False)  # 7
sketch4.addConstraint([
    Sketcher.Constraint("Horizontal", 0),
    Sketcher.Constraint("Vertical", 1),
    Sketcher.Constraint("Horizontal", 2),
    Sketcher.Constraint("Vertical", 3),
    Sketcher.Constraint("Horizontal", 4),
    Sketcher.Constraint("Vertical", 5),
    Sketcher.Constraint("Coincident", 7, 3, 6, 3),
    Sketcher.Constraint("Diameter", 6, Q("2.4718 mm")),
    Sketcher.Constraint("Diameter", 7, Q("2.0136 mm")),
    Sketcher.Constraint("DistanceX", 0, 2, 0, 1, Q("22.392 mm")),
    Sketcher.Constraint("DistanceX", 2, 1, 2, 2, Q("5.617 mm")),
    Sketcher.Constraint("DistanceY", 1, 2, 1, 1, Q("35.121 mm")),
    Sketcher.Constraint("DistanceY", 3, 2, 3, 1, Q("3.162 mm")),
    Sketcher.Constraint("DistanceX", 0, 2, -1, 1, Q("11.163 mm")),
    Sketcher.Constraint("DistanceY", 6, 3, 0, 2, Q("37.142 mm")),
    Sketcher.Constraint("DistanceX", 6, 3, -1, 1, Q("9.6707 mm")),
    Sketcher.Constraint("DistanceY", 6, 3, -1, 1, Q("17.6676 mm")),
])
pad3 = doc.addObject("PartDesign::Pad", "Pad002")
body.addObject(pad3)
pad3.Profile = sketch4
pad3.Length = 1.7

# Sketch on XY plane
sketch5 = doc.addObject("Sketcher::SketchObject", "Sketch004")
body.addObject(sketch5)
sketch5.AttachmentSupport = (doc.XY_Plane, [""])
sketch5.MapMode = "FlatFace"
sketch5.AttachmentOffset = App.Placement(App.Vector(0, 0, 1.2), App.Rotation())
add_polygon(sketch5, [(-8.2, -19.2), (-8.2, -16.2), (-11.2, -16.2), (-11.2, -19.2)])  # lines 0-3
sketch5.addGeometry(Part.Circle(App.Vector(-9.7, -17.7, 0), App.Vector(0, 0, 1), 1), False)  # 4
sketch5.addConstraint([
    Sketcher.Constraint("Vertical", 0),
    Sketcher.Constraint("Horizontal", 1),
    Sketcher.Constraint("Vertical", 2),
    Sketcher.Constraint("Horizontal", 3),
    Sketcher.Constraint("Equal", 3, 0),
    Sketcher.Constraint("DistanceX", 1, 2, 1, 1, Q("3 mm")),
    Sketcher.Constraint("Diameter", 4, Q("2.0136 mm")),
    Sketcher.Constraint("DistanceX", 4, 3, 0, 2, Q("1.5 mm")),
    Sketcher.Constraint("DistanceY", 4, 3, 0, 2, Q("1.5 mm")),
    Sketcher.Constraint("DistanceX", 4, 3, -1, 1, Q("9.6707 mm")),
    Sketcher.Constraint("DistanceY", 4, 3, -1, 1, Q("17.6676 mm")),
])
pad4 = doc.addObject("PartDesign::Pad", "Pad003")
body.addObject(pad4)
pad4.Profile = sketch5
pad4.Length = 0.4

# Sketch on XY plane
sketch6 = doc.addObject("Sketcher::SketchObject", "Sketch005")
body.addObject(sketch6)
sketch6.AttachmentSupport = (doc.XY_Plane, [""])
sketch6.MapMode = "FlatFace"
sketch6.AttachmentOffset = App.Placement(App.Vector(0, 0, 2.9), App.Rotation())
add_polygon(sketch6, [(-11.3, -16.1), (-11.3, -19.2), (-8, -19.2), (-8, -16.1)])  # lines 0-3
sketch6.addConstraint([
    Sketcher.Constraint("Vertical", 0),
    Sketcher.Constraint("Horizontal", 1),
    Sketcher.Constraint("Vertical", 2),
    Sketcher.Constraint("Horizontal", 3),
    Sketcher.Constraint("DistanceX", 1, 1, 1, 2, Q("3.344 mm")),
    Sketcher.Constraint("DistanceY", 0, 2, 0, 1, Q("3.1776 mm")),
    Sketcher.Constraint("DistanceY", 0, 2, -1, 1, Q("19.232 mm")),
    Sketcher.Constraint("DistanceX", 0, 2, -1, 1, Q("11.3405 mm")),
])
pocket2 = doc.addObject("PartDesign::Pocket", "Pocket001")
body.addObject(pocket2)
pocket2.Profile = sketch6
pocket2.Length = 0.5

doc.recompute()
